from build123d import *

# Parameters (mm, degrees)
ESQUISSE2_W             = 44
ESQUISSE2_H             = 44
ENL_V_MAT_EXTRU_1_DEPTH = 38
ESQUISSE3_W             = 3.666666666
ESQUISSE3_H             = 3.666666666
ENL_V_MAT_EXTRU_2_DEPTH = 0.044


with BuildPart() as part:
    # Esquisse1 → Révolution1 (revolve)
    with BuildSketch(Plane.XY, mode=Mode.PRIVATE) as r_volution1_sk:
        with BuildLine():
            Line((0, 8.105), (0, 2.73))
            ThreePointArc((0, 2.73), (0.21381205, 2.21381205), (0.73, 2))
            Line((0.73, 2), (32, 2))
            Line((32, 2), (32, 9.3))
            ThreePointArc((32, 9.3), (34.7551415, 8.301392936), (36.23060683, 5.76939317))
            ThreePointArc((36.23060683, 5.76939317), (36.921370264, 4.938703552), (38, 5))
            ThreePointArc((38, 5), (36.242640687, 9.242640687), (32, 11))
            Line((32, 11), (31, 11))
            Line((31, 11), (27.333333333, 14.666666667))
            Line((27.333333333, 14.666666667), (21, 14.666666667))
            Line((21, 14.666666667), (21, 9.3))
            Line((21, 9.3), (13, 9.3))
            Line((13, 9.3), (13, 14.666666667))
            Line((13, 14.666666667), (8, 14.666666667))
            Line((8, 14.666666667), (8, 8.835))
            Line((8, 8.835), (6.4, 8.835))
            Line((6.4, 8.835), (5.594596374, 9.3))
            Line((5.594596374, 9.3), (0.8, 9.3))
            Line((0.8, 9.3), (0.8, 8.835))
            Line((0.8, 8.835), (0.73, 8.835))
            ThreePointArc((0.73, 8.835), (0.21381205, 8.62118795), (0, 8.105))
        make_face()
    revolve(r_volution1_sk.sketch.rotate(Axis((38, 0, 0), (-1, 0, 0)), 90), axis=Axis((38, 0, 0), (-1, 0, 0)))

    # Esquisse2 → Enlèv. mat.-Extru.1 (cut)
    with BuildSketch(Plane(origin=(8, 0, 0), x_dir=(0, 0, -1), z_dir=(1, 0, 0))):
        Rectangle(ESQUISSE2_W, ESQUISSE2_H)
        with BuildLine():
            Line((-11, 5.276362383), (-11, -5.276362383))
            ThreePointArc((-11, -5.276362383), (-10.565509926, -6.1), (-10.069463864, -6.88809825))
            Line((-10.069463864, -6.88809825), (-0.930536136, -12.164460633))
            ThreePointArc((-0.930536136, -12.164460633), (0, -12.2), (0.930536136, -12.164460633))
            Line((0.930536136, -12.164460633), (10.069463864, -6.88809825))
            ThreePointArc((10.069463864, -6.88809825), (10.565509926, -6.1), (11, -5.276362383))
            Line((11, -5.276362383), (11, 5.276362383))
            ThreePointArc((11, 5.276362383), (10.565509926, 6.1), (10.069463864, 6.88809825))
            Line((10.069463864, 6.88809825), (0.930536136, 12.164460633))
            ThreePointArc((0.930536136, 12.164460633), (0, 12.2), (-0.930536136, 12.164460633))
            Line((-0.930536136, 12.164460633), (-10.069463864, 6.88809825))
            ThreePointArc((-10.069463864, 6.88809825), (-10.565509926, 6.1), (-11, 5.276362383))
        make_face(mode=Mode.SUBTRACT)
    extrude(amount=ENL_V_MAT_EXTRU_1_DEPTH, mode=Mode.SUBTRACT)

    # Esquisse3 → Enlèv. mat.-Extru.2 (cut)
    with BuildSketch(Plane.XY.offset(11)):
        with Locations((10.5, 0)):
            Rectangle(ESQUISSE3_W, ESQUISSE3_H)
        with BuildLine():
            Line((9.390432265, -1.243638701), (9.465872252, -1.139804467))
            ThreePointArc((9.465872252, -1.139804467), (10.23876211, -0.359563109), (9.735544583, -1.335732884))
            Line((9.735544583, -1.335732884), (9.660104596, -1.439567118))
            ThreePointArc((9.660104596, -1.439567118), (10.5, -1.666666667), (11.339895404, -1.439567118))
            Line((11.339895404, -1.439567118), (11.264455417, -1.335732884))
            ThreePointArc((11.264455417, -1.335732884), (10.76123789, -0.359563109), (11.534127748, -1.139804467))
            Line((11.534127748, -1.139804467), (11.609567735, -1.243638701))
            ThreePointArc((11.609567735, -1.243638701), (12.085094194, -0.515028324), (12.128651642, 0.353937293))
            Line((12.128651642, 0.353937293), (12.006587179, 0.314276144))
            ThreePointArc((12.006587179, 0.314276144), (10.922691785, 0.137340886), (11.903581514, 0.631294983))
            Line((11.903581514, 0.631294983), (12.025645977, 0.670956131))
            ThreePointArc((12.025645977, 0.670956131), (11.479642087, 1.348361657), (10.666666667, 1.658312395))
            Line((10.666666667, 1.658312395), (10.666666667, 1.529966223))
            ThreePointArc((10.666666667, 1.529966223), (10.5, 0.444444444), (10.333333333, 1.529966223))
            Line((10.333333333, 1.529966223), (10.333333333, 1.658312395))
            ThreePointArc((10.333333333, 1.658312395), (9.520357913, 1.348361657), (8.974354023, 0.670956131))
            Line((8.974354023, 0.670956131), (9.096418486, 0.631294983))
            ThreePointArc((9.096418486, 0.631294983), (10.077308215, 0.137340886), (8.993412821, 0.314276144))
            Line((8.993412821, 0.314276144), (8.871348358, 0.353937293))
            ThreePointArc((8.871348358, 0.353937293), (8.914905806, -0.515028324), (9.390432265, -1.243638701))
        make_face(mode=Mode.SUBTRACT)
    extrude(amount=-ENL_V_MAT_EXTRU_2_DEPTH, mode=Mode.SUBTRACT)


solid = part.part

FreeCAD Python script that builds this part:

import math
import FreeCAD as App
import Part
import Sketcher
Q = App.Units.Quantity


def add_polygon(sketch, points):
    """Adds a closed chain of lines whose ends are joined by coincident constraints."""
    first, n = sketch.GeometryCount, len(points)
    for a, b in zip(points, points[1:] + points[:1]):
        sketch.addGeometry(Part.LineSegment(App.Vector(*a, 0), App.Vector(*b, 0)), False)
    for i in range(n):
        sketch.addConstraint(Sketcher.Constraint("Coincident", first + i, 2, first + (i + 1) % n, 1))

doc = App.newDocument("Part")
body = doc.addObject("PartDesign::Body", "Body")

sketch1 = body.newObject("Sketcher::SketchObject", "Sketch")
sketch1.AttachmentSupport = (doc.getObject("XY_Plane"), [""])
sketch1.MapMode = "FlatFace"
sketch1.addGeometry(Part.LineSegment(App.Vector(0, 8.105, 0), App.Vector(0, 2.73, 0)), False)
sketch1.addGeometry(Part.ArcOfCircle(Part.Circle(App.Vector(0.73, 2.73, 0), App.Vector(0, 0, 1), 0.73), math.radians(-180), math.radians(-90)), False)
sketch1.addGeometry(Part.LineSegment(App.Vector(0.73, 2, 0), App.Vector(32, 2, 0)), False)
sketch1.addGeometry(Part.LineSegment(App.Vector(32, 2, 0), App.Vector(32, 9.3, 0)), False)
sketch1.addGeometry(Part.ArcOfCircle(Part.Circle(App.Vector(32, 5, 0), App.Vector(0, 0, 1), 4.3), math.radians(10.307363), math.radians(90)), False)
sketch1.addGeometry(Part.ArcOfCircle(Part.Circle(App.Vector(37.39989, 6.039167, 0), App.Vector(0, 0, 1), 1.2), math.radians(-167.008217), math.radians(-59.993914)), False)
sketch1.addGeometry(Part.ArcOfCircle(Part.Circle(App.Vector(32, 5, 0), App.Vector(0, 0, 1), 6), math.radians(0), math.radians(90)), False)
sketch1.addGeometry(Part.LineSegment(App.Vector(32, 11, 0), App.Vector(31, 11, 0)), False)
sketch1.addGeometry(Part.LineSegment(App.Vector(31, 11, 0), App.Vector(27.333333, 14.666667, 0)), False)
sketch1.addGeometry(Part.LineSegment(App.Vector(27.333333, 14.666667, 0), App.Vector(21, 14.666667, 0)), False)
sketch1.addGeometry(Part.LineSegment(App.Vector(21, 14.666667, 0), App.Vector(21, 9.3, 0)), False)
sketch1.addGeometry(Part.LineSegment(App.Vector(21, 9.3, 0), App.Vector(13, 9.3, 0)), False)
sketch1.addGeometry(Part.LineSegment(App.Vector(13, 9.3, 0), App.Vector(13, 14.666667, 0)), False)
sketch1.addGeometry(Part.LineSegment(App.Vector(13, 14.666667, 0), App.Vector(8, 14.666667, 0)), False)
sketch1.addGeometry(Part.LineSegment(App.Vector(8, 14.666667, 0), App.Vector(8, 8.835, 0)), False)
sketch1.addGeometry(Part.LineSegment(App.Vector(8, 8.835, 0), App.Vector(6.4, 8.835, 0)), False)
sketch1.addGeometry(Part.LineSegment(App.Vector(6.4, 8.835, 0), App.Vector(5.594596, 9.3, 0)), False)
sketch1.addGeometry(Part.LineSegment(App.Vector(5.594596, 9.3, 0), App.Vector(0.8, 9.3, 0)), False)
sketch1.addGeometry(Part.LineSegment(App.Vector(0.8, 9.3, 0), App.Vector(0.8, 8.835, 0)), False)
sketch1.addGeometry(Part.LineSegment(App.Vector(0.8, 8.835, 0), App.Vector(0.73, 8.835, 0)), False)
sketch1.addGeometry(Part.ArcOfCircle(Part.Circle(App.Vector(0.73, 8.105, 0), App.Vector(0, 0, 1), 0.73), math.radians(90), math.radians(180)), False)
sketch1.addConstraint(Sketcher.Constraint("Tangent", 0, 2, 1, 1))
sketch1.addConstraint(Sketcher.Constraint("Tangent", 1, 2, 2, 1))
sketch1.addConstraint(Sketcher.Constraint("Coincident", 2, 2, 3, 1))
sketch1.addConstraint(Sketcher.Constraint("Coincident", 3, 2, 4, 2))
sketch1.addConstraint(Sketcher.Constraint("Coincident", 4, 1, 5, 1))
sketch1.addConstraint(Sketcher.Constraint("Coincident", 5, 2, 6, 1))
sketch1.addConstraint(Sketcher.Constraint("Tangent", 6, 2, 7, 1))
sketch1.addConstraint(Sketcher.Constraint("Coincident", 7, 2, 8, 1))
sketch1.addConstraint(Sketcher.Constraint("Coincident", 8, 2, 9, 1))
sketch1.addConstraint(Sketcher.Constraint("Coincident", 9, 2, 10, 1))
sketch1.addConstraint(Sketcher.Constraint("Coincident", 10, 2, 11, 1))
sketch1.addConstraint(Sketcher.Constraint("Coincident", 11, 2, 12, 1))
sketch1.addConstraint(Sketcher.Constraint("Coincident", 12, 2, 13, 1))
sketch1.addConstraint(Sketcher.Constraint("Coincident", 13, 2, 14, 1))
sketch1.addConstraint(Sketcher.Constraint("Coincident", 14, 2, 15, 1))
sketch1.addConstraint(Sketcher.Constraint("Coincident", 15, 2, 16, 1))
sketch1.addConstraint(Sketcher.Constraint("Coincident", 16, 2, 17, 1))
sketch1.addConstraint(Sketcher.Constraint("Coincident", 17, 2, 18, 1))
sketch1.addConstraint(Sketcher.Constraint("Coincident", 18, 2, 19, 1))
sketch1.addConstraint(Sketcher.Constraint("Tangent", 19, 2, 20, 1))
sketch1.addConstraint(Sketcher.Constraint("Tangent", 20, 2, 0, 1))
sketch1.addConstraint(Sketcher.Constraint("Vertical", 0))
sketch1.addConstraint(Sketcher.Constraint("Horizontal", 2))
sketch1.addConstraint(Sketcher.Constraint("Vertical", 3))
sketch1.addConstraint(Sketcher.Constraint("Horizontal", 7))
sketch1.addConstraint(Sketcher.Constraint("Horizontal", 9))
sketch1.addConstraint(Sketcher.Constraint("Vertical", 10))
sketch1.addConstraint(Sketcher.Constraint("Horizontal", 11))
sketch1.addConstraint(Sketcher.Constraint("Vertical", 12))
sketch1.addConstraint(Sketcher.Constraint("Horizontal", 13))
sketch1.addConstraint(Sketcher.Constraint("Vertical", 14))
sketch1.addConstraint(Sketcher.Constraint("Horizontal", 15))
sketch1.addConstraint(Sketcher.Constraint("Horizontal", 17))
sketch1.addConstraint(Sketcher.Constraint("Vertical", 18))
sketch1.addConstraint(Sketcher.Constraint("Horizontal", 19))
sketch1.addConstraint(Sketcher.Constraint("Coincident", 6, 3, 4, 3))
sketch1.addConstraint(Sketcher.Constraint("Equal", 1, 20))
sketch1.addConstraint(Sketcher.Constraint("PointOnObject", 0, 2, -2))
sketch1.addConstraint(Sketcher.Constraint("Horizontal", 6, 3, 5, 2))
sketch1.addConstraint(Sketcher.Constraint("Horizontal", 3, 2, 10, 2))
sketch1.addConstraint(Sketcher.Constraint("Horizontal", 9, 2, 12, 2))
sketch1.addConstraint(Sketcher.Constraint("Horizontal", 11, 2, 16, 2))
sketch1.addConstraint(Sketcher.Constraint("Horizontal", 15, 2, 18, 2))
sketch1.addConstraint(Sketcher.Constraint("Vertical", 6, 3, 2, 2))
sketch1.addConstraint(Sketcher.Constraint("Radius", 6, 6.0))
sketch1.addConstraint(Sketcher.Constraint("Radius", 4, 4.3))
sketch1.addConstraint(Sketcher.Constraint("Radius", 5, 1.2))
sketch1.addConstraint(Sketcher.Constraint("DistanceX", 7, 2, 7, 1, 1.0))
sketch1.addConstraint(Sketcher.Constraint("DistanceX", 11, 2, 11, 1, 8.0))
sketch1.addConstraint(Sketcher.Constraint("DistanceX", 13, 2, 13, 1, 5.0))
sketch1.addConstraint(Sketcher.Constraint("Angle", 8, Q("135 deg")))
sketch1.addConstraint(Sketcher.Constraint("Angle", 16, Q("150 deg")))
sketch1.addConstraint(Sketcher.Constraint("Radius", 1, 0.73))
sketch1.addConstraint(Sketcher.Constraint("DistanceX", 15, 2, 15, 1, 1.6))
sketch1.addConstraint(Sketcher.Constraint("DistanceY", 3, 1, 3, 2, 7.3))
sketch1.addConstraint(Sketcher.Constraint("DistanceX", -1, 1, 4, 3, 32.0))
sketch1.addConstraint(Sketcher.Constraint("DistanceY", -1, 1, 4, 3, 5.0))
sketch1.addConstraint(Sketcher.Constraint("DistanceX", -1, 1, 9, 2, 21.0))
sketch1.addConstraint(Sketcher.Constraint("DistanceX", 19, 2, 19, 1, 0.07))
sketch1.addConstraint(Sketcher.Constraint("Distance", 16, 0.93))
sketch1.addConstraint(Sketcher.Constraint("Distance", 8, 5.18545))
sketch1.addConstraint(Sketcher.Constraint("DistanceX", -1, 1, 5, 3, 37.39989))
revolution = body.newObject("PartDesign::Revolution", "Revolution")
revolution.Profile = sketch1
revolution.ReferenceAxis = (sketch1, ["H_Axis"])
revolution.Angle = 360

sketch2 = body.newObject("Sketcher::SketchObject", "Sketch001")
sketch2.AttachmentSupport = (doc.getObject("YZ_Plane"), [""])
sketch2.MapMode = "FlatFace"
sketch2.AttachmentOffset = App.Placement(App.Vector(0, 0, 8), App.Rotation())
add_polygon(sketch2, [(22, 22), (-22, 22), (-22, -22), (22, -22)])
sketch2.addGeometry(Part.LineSegment(App.Vector(-5.276362, 11, 0), App.Vector(5.276362, 11, 0)), False)
sketch2.addGeometry(Part.ArcOfCircle(Part.Circle(App.Vector(0, 0, 0), App.Vector(0, 0, 1), 12.2), math.radians(55.625605), math.radians(64.374395)), False)
sketch2.addGeometry(Part.LineSegment(App.Vector(6.888098, 10.069464, 0), App.Vector(12.164461, 0.930536, 0)), False)
sketch2.addGeometry(Part.ArcOfCircle(Part.Circle(App.Vector(0, 0, 0), App.Vector(0, 0, 1), 12.2), math.radians(-4.374395), math.radians(4.374395)), False)
sketch2.addGeometry(Part.LineSegment(App.Vector(12.164461, -0.930536, 0), App.Vector(6.888098, -10.069464, 0)), False)
sketch2.addGeometry(Part.ArcOfCircle(Part.Circle(App.Vector(0, 0, 0), App.Vector(0, 0, 1), 12.2), math.radians(-64.374395), math.radians(-55.625605)), False)
sketch2.addGeometry(Part.LineSegment(App.Vector(5.276362, -11, 0), App.Vector(-5.276362, -11, 0)), False)
sketch2.addGeometry(Part.ArcOfCircle(Part.Circle(App.Vector(0, 0, 0), App.Vector(0, 0, 1), 12.2), math.radians(-124.374395), math.radians(-115.625605)), False)
sketch2.addGeometry(Part.LineSegment(App.Vector(-6.888098, -10.069464, 0), App.Vector(-12.164461, -0.930536, 0)), False)
sketch2.addGeometry(Part.ArcOfCircle(Part.Circle(App.Vector(0, 0, 0), App.Vector(0, 0, 1), 12.2), math.radians(175.625605), math.radians(184.374395)), False)
sketch2.addGeometry(Part.LineSegment(App.Vector(-12.164461, 0.930536, 0), App.Vector(-6.888098, 10.069464, 0)), False)
sketch2.addGeometry(Part.ArcOfCircle(Part.Circle(App.Vector(0, 0, 0), App.Vector(0, 0, 1), 12.2), math.radians(115.625605), math.radians(124.374395)), False)
sketch2.addConstraint(Sketcher.Constraint("Coincident", 4, 2, 5, 2))
sketch2.addConstraint(Sketcher.Constraint("Coincident", 5, 1, 6, 1))
sketch2.addConstraint(Sketcher.Constraint("Coincident", 6, 2, 7, 2))
sketch2.addConstraint(Sketcher.Constraint("Coincident", 7, 1, 8, 1))
sketch2.addConstraint(Sketcher.Constraint("Coincident", 8, 2, 9, 2))
sketch2.addConstraint(Sketcher.Constraint("Coincident", 9, 1, 10, 1))
sketch2.addConstraint(Sketcher.Constraint("Coincident", 10, 2, 11, 2))
sketch2.addConstraint(Sketcher.Constraint("Coincident", 11, 1, 12, 1))
sketch2.addConstraint(Sketcher.Constraint("Coincident", 12, 2, 13, 2))
sketch2.addConstraint(Sketcher.Constraint("Coincident", 13, 1, 14, 1))
sketch2.addConstraint(Sketcher.Constraint("Coincident", 14, 2, 15, 2))
sketch2.addConstraint(Sketcher.Constraint("Coincident", 15, 1, 4, 1))
sketch2.addConstraint(Sketcher.Constraint("Horizontal", 0))
sketch2.addConstraint(Sketcher.Constraint("Vertical", 1))
sketch2.addConstraint(Sketcher.Constraint("Horizontal", 2))
sketch2.addConstraint(Sketcher.Constraint("Vertical", 3))
sketch2.addConstraint(Sketcher.Constraint("Horizontal", 4))
sketch2.addConstraint(Sketcher.Constraint("Horizontal", 10))
sketch2.addConstraint(Sketcher.Constraint("Coincident", 5, 3, -1, 1))
sketch2.addConstraint(Sketcher.Constraint("Coincident", 7, 3, -1, 1))
sketch2.addConstraint(Sketcher.Constraint("Coincident", 9, 3, -1, 1))
sketch2.addConstraint(Sketcher.Constraint("Coincident", 11, 3, -1, 1))
sketch2.addConstraint(Sketcher.Constraint("Coincident", 13, 3, -1, 1))
sketch2.addConstraint(Sketcher.Constraint("Coincident", 15, 3, -1, 1))
sketch2.addConstraint(Sketcher.Constraint("Equal", 5, 7))
sketch2.addConstraint(Sketcher.Constraint("Equal", 7, 9))
sketch2.addConstraint(Sketcher.Constraint("Equal", 9, 11))
sketch2.addConstraint(Sketcher.Constraint("Equal", 11, 13))
sketch2.addConstraint(Sketcher.Constraint("Equal", 13, 15))
sketch2.addConstraint(Sketcher.Constraint("Symmetric", 0, 2, 2, 2, -1, 1))
sketch2.addConstraint(Sketcher.Constraint("Parallel", 6, 12))
sketch2.addConstraint(Sketcher.Constraint("Parallel", 8, 14))
sketch2.addConstraint(Sketcher.Constraint("Horizontal", 8, 2, 11, 1))
sketch2.addConstraint(Sketcher.Constraint("Horizontal", 7, 1, 12, 2))
sketch2.addConstraint(Sketcher.Constraint("Horizontal", 6, 2, 13, 1))
sketch2.addConstraint(Sketcher.Constraint("Vertical", 6, 2, 7, 1))
sketch2.addConstraint(Sketcher.Constraint("Vertical", 4, 2, 9, 1))
sketch2.addConstraint(Sketcher.Constraint("Equal", 2, 1))
sketch2.addConstraint(Sketcher.Constraint("Radius", 5, 12.2))
sketch2.addConstraint(Sketcher.Constraint("DistanceX", 0, 2, 0, 1, 44.0))
sketch2.addConstraint(Sketcher.Constraint("Angle", 6, Q("-60 deg")))
sketch2.addConstraint(Sketcher.Constraint("DistanceY", -1, 1, 4, 2, 11.0))
sketch2.addConstraint(Sketcher.Constraint("DistanceY", 7, 1, 5, 1, 11.0))
pocket1 = body.newObject("PartDesign::Pocket", "Pocket")
pocket1.Profile = sketch2
pocket1.Length = 38
pocket1.Reversed = True

sketch3 = body.newObject("Sketcher::SketchObject", "Sketch002")
sketch3.AttachmentSupport = (doc.getObject("XY_Plane"), [""])
sketch3.MapMode = "FlatFace"
sketch3.AttachmentOffset = App.Placement(App.Vector(0, 0, 11), App.Rotation())
add_polygon(sketch3, [(8.666667, 1.833333), (8.666667, -1.833333), (12.333333, -1.833333), (12.333333, 1.833333)])
sketch3.addGeometry(Part.LineSegment(App.Vector(9.465872, -1.139804, 0), App.Vector(9.390432, -1.243639, 0)), False)
sketch3.addGeometry(Part.ArcOfCircle(Part.Circle(App.Vector(10.5, 0, 0), App.Vector(0, 0, 1), 1.666667), math.radians(167.73917), math.radians(228.26083)), False)
sketch3.addGeometry(Part.LineSegment(App.Vector(8.871348, 0.353937, 0), App.Vector(8.993413, 0.314276, 0)), False)
sketch3.addGeometry(Part.ArcOfCircle(Part.Circle(App.Vector(9.548943, 0.309017, 0), App.Vector(0, 0, 1), 0.555556), math.radians(179.457603), math.radians(504.542397)), False)
sketch3.addGeometry(Part.LineSegment(App.Vector(9.096418, 0.631295, 0), App.Vector(8.974354, 0.670956, 0)), False)
sketch3.addGeometry(Part.ArcOfCircle(Part.Circle(App.Vector(10.5, 0, 0), App.Vector(0, 0, 1), 1.666667), math.radians(95.739171), math.radians(156.26083)), False)
sketch3.addGeometry(Part.LineSegment(App.Vector(10.333333, 1.658312, 0), App.Vector(10.333333, 1.529966, 0)), False)
sketch3.addGeometry(Part.ArcOfCircle(Part.Circle(App.Vector(10.5, 1, 0), App.Vector(0, 0, 1), 0.555556), math.radians(107.457603), math.radians(432.542397)), False)
sketch3.addGeometry(Part.LineSegment(App.Vector(10.666667, 1.529966, 0), App.Vector(10.666667, 1.658312, 0)), False)
sketch3.addGeometry(Part.ArcOfCircle(Part.Circle(App.Vector(10.5, 0, 0), App.Vector(0, 0, 1), 1.666667), math.radians(23.73917), math.radians(84.260829)), False)
sketch3.addGeometry(Part.LineSegment(App.Vector(12.025646, 0.670956, 0), App.Vector(11.903582, 0.631295, 0)), False)
sketch3.addGeometry(Part.ArcOfCircle(Part.Circle(App.Vector(11.451057, 0.309017, 0), App.Vector(0, 0, 1), 0.555556), math.radians(35.457603), math.radians(360.542397)), False)
sketch3.addGeometry(Part.LineSegment(App.Vector(12.006587, 0.314276, 0), App.Vector(12.128652, 0.353937, 0)), False)
sketch3.addGeometry(Part.ArcOfCircle(Part.Circle(App.Vector(10.5, 0, 0), App.Vector(0, 0, 1), 1.666667), math.radians(-48.26083), math.radians(12.26083)), False)
sketch3.addGeometry(Part.LineSegment(App.Vector(11.609568, -1.243639, 0), App.Vector(11.534128, -1.139804, 0)), False)
sketch3.addGeometry(Part.ArcOfCircle(Part.Circle(App.Vector(11.087785, -0.809017, 0), App.Vector(0, 0, 1), 0.555556), math.radians(-36.542397), math.radians(288.542397)), False)
sketch3.addGeometry(Part.LineSegment(App.Vector(11.264455, -1.335733, 0), App.Vector(11.339895, -1.439567, 0)), False)
sketch3.addGeometry(Part.ArcOfCircle(Part.Circle(App.Vector(10.5, 0, 0), App.Vector(0, 0, 1), 1.666667), math.radians(-120.26083), math.radians(-59.73917)), False)
sketch3.addGeometry(Part.LineSegment(App.Vector(9.660105, -1.439567, 0), App.Vector(9.735545, -1.335733, 0)), False)
sketch3.addGeometry(Part.ArcOfCircle(Part.Circle(App.Vector(9.912215, -0.809017, 0), App.Vector(0, 0, 1), 0.555556), math.radians(-108.542397), math.radians(216.542397)), False)
sketch3.addConstraint(Sketcher.Constraint("Coincident", 4, 2, 5, 2))
sketch3.addConstraint(Sketcher.Constraint("Coincident", 5, 1, 6, 1))
sketch3.addConstraint(Sketcher.Constraint("Coincident", 6, 2, 7, 1))
sketch3.addConstraint(Sketcher.Constraint("Coincident", 7, 2, 8, 1))
sketch3.addConstraint(Sketcher.Constraint("Coincident", 8, 2, 9, 2))
sketch3.addConstraint(Sketcher.Constraint("Coincident", 9, 1, 10, 1))
sketch3.addConstraint(Sketcher.Constraint("Coincident", 10, 2, 11, 1))
sketch3.addConstraint(Sketcher.Constraint("Coincident", 11, 2, 12, 1))
sketch3.addConstraint(Sketcher.Constraint("Coincident", 12, 2, 13, 2))
sketch3.addConstraint(Sketcher.Constraint("Coincident", 13, 1, 14, 1))
sketch3.addConstraint(Sketcher.Constraint("Coincident", 14, 2, 15, 1))
sketch3.addConstraint(Sketcher.Constraint("Coincident", 15, 2, 16, 1))
sketch3.addConstraint(Sketcher.Constraint("Coincident", 16, 2, 17, 2))
sketch3.addConstraint(Sketcher.Constraint("Coincident", 17, 1, 18, 1))
sketch3.addConstraint(Sketcher.Constraint("Coincident", 18, 2, 19, 1))
sketch3.addConstraint(Sketcher.Constraint("Coincident", 19, 2, 20, 1))
sketch3.addConstraint(Sketcher.Constraint("Coincident", 20, 2, 21, 2))
sketch3.addConstraint(Sketcher.Constraint("Coincident", 21, 1, 22, 1))
sketch3.addConstraint(Sketcher.Constraint("Coincident", 22, 2, 23, 1))
sketch3.addConstraint(Sketcher.Constraint("Coincident", 23, 2, 4, 1))
sketch3.addConstraint(Sketcher.Constraint("Vertical", 0))
sketch3.addConstraint(Sketcher.Constraint("Horizontal", 1))
sketch3.addConstraint(Sketcher.Constraint("Vertical", 2))
sketch3.addConstraint(Sketcher.Constraint("Horizontal", 3))
sketch3.addConstraint(Sketcher.Constraint("Vertical", 10))
sketch3.addConstraint(Sketcher.Constraint("Vertical", 12))
sketch3.addConstraint(Sketcher.Constraint("Coincident", 9, 3, 5, 3))
sketch3.addConstraint(Sketcher.Constraint("Coincident", 13, 3, 5, 3))
sketch3.addConstraint(Sketcher.Constraint("Coincident", 17, 3, 5, 3))
sketch3.addConstraint(Sketcher.Constraint("Coincident", 21, 3, 5, 3))
sketch3.addConstraint(Sketcher.Constraint("Equal", 5, 9))
sketch3.addConstraint(Sketcher.Constraint("Equal", 7, 11))
sketch3.addConstraint(Sketcher.Constraint("Equal", 9, 13))
sketch3.addConstraint(Sketcher.Constraint("Equal", 11, 15))
sketch3.addConstraint(Sketcher.Constraint("Equal", 13, 17))
sketch3.addConstraint(Sketcher.Constraint("Equal", 15, 19))
sketch3.addConstraint(Sketcher.Constraint("Equal", 17, 21))
sketch3.addConstraint(Sketcher.Constraint("Equal", 19, 23))
sketch3.addConstraint(Sketcher.Constraint("PointOnObject", 5, 3, -1))
sketch3.addConstraint(Sketcher.Constraint("Parallel", 6, 8))
sketch3.addConstraint(Sketcher.Constraint("Parallel", 14, 16))
sketch3.addConstraint(Sketcher.Constraint("Parallel", 18, 20))
sketch3.addConstraint(Sketcher.Constraint("Parallel", 4, 22))
sketch3.addConstraint(Sketcher.Constraint("Horizontal", 7, 3, 15, 3))
sketch3.addConstraint(Sketcher.Constraint("Horizontal", 19, 3, 23, 3))
sketch3.addConstraint(Sketcher.Constraint("Horizontal", 10, 2, 11, 2))
sketch3.addConstraint(Sketcher.Constraint("Horizontal", 9, 1, 12, 2))
sketch3.addConstraint(Sketcher.Constraint("Horizontal", 8, 2, 13, 1))
sketch3.addConstraint(Sketcher.Constraint("Horizontal", 7, 2, 14, 2))
sketch3.addConstraint(Sketcher.Constraint("Horizontal", 6, 2, 15, 2))
sketch3.addConstraint(Sketcher.Constraint("Horizontal", 4, 2, 17, 1))
sketch3.addConstraint(Sketcher.Constraint("Horizontal", 20, 2, 21, 1))
sketch3.addConstraint(Sketcher.Constraint("Horizontal", 19, 2, 22, 2))
sketch3.addConstraint(Sketcher.Constraint("Equal", 3, 0))
sketch3.addConstraint(Sketcher.Constraint("Equal", 4, 6))
sketch3.addConstraint(Sketcher.Constraint("Equal", 6, 8))
sketch3.addConstraint(Sketcher.Constraint("Equal", 8, 14))
sketch3.addConstraint(Sketcher.Constraint("Equal", 16, 18))
sketch3.addConstraint(Sketcher.Constraint("Equal", 18, 20))
sketch3.addConstraint(Sketcher.Constraint("Angle", 4, Q("-126 deg")))
sketch3.addConstraint(Sketcher.Constraint("Angle", 6, Q("-18 deg")))
sketch3.addConstraint(Sketcher.Constraint("DistanceY", -1, 1, 11, 3, 1.0))
sketch3.addConstraint(Sketcher.Constraint("DistanceX", -1, 1, 5, 3, 10.5))
sketch3.addConstraint(Sketcher.Constraint("Radius", 5, 1.666667))
sketch3.addConstraint(Sketcher.Constraint("Radius", 7, 0.555556))
sketch3.addConstraint(Sketcher.Constraint("DistanceX", 6, 2, 23, 3, 0.918802))
sketch3.addConstraint(Sketcher.Constraint("DistanceY", 1, 2, 19, 2, 0.4976))
sketch3.addConstraint(Sketcher.Constraint("DistanceX", 1, 1, 1, 2, 3.666667))
sketch3.addConstraint(Sketcher.Constraint("DistanceY", 10, 2, 10, 1, 0.128346))
sketch3.addConstraint(Sketcher.Constraint("DistanceY", 4, 2, -1, 1, 1.243639))
sketch3.addConstraint(Sketcher.Constraint("DistanceX", -1, 1, 5, 1, 8.871348))
sketch3.addConstraint(Sketcher.Constraint("DistanceX", -1, 1, 7, 2, 9.096418))
sketch3.addConstraint(Sketcher.Constraint("DistanceX", 0, 2, 23, 3, 1.245548))
sketch3.addConstraint(Sketcher.Constraint("DistanceY", 0, 2, 7, 3, 2.14235))
pocket2 = body.newObject("PartDesign::Pocket", "Pocket001")
pocket2.Profile = sketch3
pocket2.Length = 0.044

doc.recompute()
